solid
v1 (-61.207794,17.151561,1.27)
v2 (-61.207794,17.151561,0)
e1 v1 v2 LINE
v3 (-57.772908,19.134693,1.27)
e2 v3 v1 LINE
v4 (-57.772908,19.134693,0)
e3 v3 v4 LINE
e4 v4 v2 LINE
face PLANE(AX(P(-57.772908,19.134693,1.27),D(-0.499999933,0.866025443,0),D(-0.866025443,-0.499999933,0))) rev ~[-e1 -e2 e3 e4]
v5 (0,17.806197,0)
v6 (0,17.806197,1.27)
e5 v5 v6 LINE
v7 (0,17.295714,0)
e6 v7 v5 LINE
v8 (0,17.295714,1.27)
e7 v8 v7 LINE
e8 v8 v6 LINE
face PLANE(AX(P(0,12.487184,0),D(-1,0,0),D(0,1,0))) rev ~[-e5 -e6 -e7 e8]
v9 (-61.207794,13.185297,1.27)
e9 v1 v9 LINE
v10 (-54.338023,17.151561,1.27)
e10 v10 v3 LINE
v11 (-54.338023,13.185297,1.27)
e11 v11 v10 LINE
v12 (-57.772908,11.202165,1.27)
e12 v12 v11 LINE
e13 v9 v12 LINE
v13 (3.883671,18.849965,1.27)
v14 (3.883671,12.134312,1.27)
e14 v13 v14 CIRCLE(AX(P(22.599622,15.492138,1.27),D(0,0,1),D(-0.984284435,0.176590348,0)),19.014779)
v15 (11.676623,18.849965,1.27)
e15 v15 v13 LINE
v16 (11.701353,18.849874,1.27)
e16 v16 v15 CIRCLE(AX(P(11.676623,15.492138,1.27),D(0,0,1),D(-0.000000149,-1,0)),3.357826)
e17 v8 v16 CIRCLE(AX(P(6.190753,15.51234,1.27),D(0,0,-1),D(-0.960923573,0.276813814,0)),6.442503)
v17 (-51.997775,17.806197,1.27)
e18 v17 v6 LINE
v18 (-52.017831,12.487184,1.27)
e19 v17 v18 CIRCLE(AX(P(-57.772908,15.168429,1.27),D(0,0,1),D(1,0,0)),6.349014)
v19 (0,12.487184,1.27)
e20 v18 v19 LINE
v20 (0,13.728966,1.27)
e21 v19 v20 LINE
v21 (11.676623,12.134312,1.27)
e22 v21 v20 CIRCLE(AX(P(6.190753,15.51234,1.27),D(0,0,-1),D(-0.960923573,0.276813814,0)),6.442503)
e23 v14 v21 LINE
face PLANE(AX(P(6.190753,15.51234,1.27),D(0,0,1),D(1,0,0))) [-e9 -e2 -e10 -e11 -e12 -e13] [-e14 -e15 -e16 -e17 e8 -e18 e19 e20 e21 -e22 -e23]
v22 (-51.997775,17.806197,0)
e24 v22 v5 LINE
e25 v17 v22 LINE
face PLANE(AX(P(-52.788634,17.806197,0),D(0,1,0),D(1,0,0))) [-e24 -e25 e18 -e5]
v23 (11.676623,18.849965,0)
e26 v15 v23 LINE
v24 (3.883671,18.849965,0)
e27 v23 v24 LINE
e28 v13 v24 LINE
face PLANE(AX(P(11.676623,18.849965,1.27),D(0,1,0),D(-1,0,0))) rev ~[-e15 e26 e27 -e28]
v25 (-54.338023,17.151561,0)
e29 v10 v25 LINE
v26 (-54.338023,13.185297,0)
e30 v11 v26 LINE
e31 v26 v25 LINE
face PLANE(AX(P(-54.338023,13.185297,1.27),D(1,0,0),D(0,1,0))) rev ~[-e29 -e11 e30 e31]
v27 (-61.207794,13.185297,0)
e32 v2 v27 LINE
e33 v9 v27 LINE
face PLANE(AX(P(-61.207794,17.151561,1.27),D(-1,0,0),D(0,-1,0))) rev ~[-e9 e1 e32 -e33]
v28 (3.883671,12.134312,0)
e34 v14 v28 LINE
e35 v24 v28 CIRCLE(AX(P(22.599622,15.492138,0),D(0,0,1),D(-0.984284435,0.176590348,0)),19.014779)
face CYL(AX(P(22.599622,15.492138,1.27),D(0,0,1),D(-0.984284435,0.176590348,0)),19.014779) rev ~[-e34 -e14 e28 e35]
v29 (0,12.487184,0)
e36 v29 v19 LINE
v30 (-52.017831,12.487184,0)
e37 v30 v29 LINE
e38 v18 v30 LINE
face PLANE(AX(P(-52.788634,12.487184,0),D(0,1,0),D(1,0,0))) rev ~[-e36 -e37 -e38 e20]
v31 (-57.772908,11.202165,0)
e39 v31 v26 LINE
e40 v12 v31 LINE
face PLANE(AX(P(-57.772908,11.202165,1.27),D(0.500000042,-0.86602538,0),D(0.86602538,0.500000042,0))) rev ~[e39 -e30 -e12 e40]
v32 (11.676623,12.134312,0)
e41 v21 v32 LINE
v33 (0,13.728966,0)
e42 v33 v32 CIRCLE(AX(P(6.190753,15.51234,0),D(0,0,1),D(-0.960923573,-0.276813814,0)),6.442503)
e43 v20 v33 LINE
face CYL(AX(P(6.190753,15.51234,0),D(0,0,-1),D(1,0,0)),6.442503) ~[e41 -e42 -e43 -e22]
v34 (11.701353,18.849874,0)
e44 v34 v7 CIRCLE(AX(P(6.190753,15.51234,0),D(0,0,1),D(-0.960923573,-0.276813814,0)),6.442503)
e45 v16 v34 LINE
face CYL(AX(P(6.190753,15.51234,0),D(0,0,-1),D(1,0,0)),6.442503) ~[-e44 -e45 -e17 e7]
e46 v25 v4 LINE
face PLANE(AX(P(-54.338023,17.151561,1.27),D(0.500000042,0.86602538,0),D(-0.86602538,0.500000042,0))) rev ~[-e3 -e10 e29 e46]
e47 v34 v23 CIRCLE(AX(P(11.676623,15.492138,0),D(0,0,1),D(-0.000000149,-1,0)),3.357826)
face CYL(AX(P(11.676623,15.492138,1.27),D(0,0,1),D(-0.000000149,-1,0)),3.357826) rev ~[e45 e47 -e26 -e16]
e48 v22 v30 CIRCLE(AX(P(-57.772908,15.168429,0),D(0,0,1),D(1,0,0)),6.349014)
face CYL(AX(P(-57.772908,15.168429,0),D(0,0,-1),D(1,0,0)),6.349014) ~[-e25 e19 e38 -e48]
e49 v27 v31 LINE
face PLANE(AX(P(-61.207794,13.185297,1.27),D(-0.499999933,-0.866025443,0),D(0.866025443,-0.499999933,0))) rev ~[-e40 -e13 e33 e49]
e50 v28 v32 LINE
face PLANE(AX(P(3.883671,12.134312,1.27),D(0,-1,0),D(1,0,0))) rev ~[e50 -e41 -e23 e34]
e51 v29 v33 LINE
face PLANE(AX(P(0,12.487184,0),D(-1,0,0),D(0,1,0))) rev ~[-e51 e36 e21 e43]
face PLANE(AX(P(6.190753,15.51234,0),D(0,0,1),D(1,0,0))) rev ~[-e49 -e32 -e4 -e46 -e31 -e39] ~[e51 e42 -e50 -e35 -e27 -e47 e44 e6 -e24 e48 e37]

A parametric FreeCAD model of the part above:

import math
import FreeCAD as App
import Part
import Sketcher
Q = App.Units.Quantity

doc = App.newDocument("Part")
body = doc.addObject("PartDesign::Body", "Body")

sketch1 = body.newObject("Sketcher::SketchObject", "Sketch")
sketch1.AttachmentSupport = (doc.getObject("XY_Plane"), [""])
sketch1.MapMode = "FlatFace"
sketch1.addGeometry(Part.Circle(App.Vector(-57.772908, 15.168429, 0), App.Vector(0, 0, 1), 6.349014), False)
sketch1.addConstraint(Sketcher.Constraint("Diameter", 0, Q("12.698028 mm")))
sketch1.addConstraint(Sketcher.Constraint("DistanceY", -1, 1, 0, 3, Q("15.168429 mm")))
sketch1.addConstraint(Sketcher.Constraint("DistanceX", 0, 3, -1, 1, Q("57.772908 mm")))
pad1 = body.newObject("PartDesign::Pad", "Pad")
pad1.Profile = sketch1
pad1.Length = Q("0.05 in")

sketch2 = body.newObject("Sketcher::SketchObject", "Sketch001")
sketch2.AttachmentSupport = (doc.getObject("XY_Plane"), [""])
sketch2.MapMode = "FlatFace"
sketch2.addGeometry(Part.Circle(App.Vector(-57.772908, 15.168429, 0), App.Vector(0, 0, 1), 6.349014), False)
sketch2.addConstraint(Sketcher.Constraint("Diameter", 0, Q("12.698028 mm")))
sketch2.addConstraint(Sketcher.Constraint("DistanceY", -1, 1, 0, 3, Q("15.168429 mm")))
sketch2.addConstraint(Sketcher.Constraint("DistanceX", 0, 3, -1, 1, Q("57.772908 mm")))
pad2 = body.newObject("PartDesign::Pad", "Pad001")
pad2.Profile = sketch2
pad2.Length = Q("0.05 in")

sketch3 = body.newObject("Sketcher::SketchObject", "Sketch002")
sketch3.AttachmentSupport = (doc.getObject("XY_Plane"), [""])
sketch3.MapMode = "FlatFace"
sketch3.addGeometry(Part.LineSegment(App.Vector(-52.788634, 17.806197, 0), App.Vector(-52.788634, 12.487184, 0)), False)
sketch3.addGeometry(Part.LineSegment(App.Vector(-52.788634, 12.487184, 0), App.Vector(0, 12.487184, 0)), False)
sketch3.addGeometry(Part.LineSegment(App.Vector(0, 12.487184, 0), App.Vector(0, 17.806197, 0)), False)
sketch3.addGeometry(Part.LineSegment(App.Vector(0, 17.806197, 0), App.Vector(-52.788634, 17.806197, 0)), False)
sketch3.addConstraint(Sketcher.Constraint("Coincident", 0, 2, 1, 1))
sketch3.addConstraint(Sketcher.Constraint("Coincident", 1, 2, 2, 1))
sketch3.addConstraint(Sketcher.Constraint("Coincident", 2, 2, 3, 1))
sketch3.addConstraint(Sketcher.Constraint("Coincident", 3, 2, 0, 1))
sketch3.addConstraint(Sketcher.Constraint("Vertical", 0))
sketch3.addConstraint(Sketcher.Constraint("Horizontal", 1))
sketch3.addConstraint(Sketcher.Constraint("Vertical", 2))
sketch3.addConstraint(Sketcher.Constraint("Horizontal", 3))
sketch3.addConstraint(Sketcher.Constraint("PointOnObject", 1, 2, -2))
sketch3.addConstraint(Sketcher.Constraint("DistanceX", 1, 1, 1, 2, Q("52.788634 mm")))
sketch3.addConstraint(Sketcher.Constraint("DistanceY", 0, 2, 0, 1, Q("5.319013 mm")))
sketch3.addConstraint(Sketcher.Constraint("DistanceY", -1, 1, 0, 2, Q("12.487184 mm")))
pad3 = body.newObject("PartDesign::Pad", "Pad002")
pad3.Profile = sketch3
pad3.Length = Q("0.05 in")

sketch4 = body.newObject("Sketcher::SketchObject", "Sketch003")
sketch4.AttachmentSupport = (doc.getObject("XY_Plane"), [""])
sketch4.MapMode = "FlatFace"
sketch4.addGeometry(Part.Circle(App.Vector(6.190753, 15.51234, 0), App.Vector(0, 0, 1), 6.442503), False)
sketch4.addConstraint(Sketcher.Constraint("Diameter", 0, Q("12.885006 mm")))
sketch4.addConstraint(Sketcher.Constraint("DistanceY", -1, 1, 0, 3, Q("15.51234 mm")))
sketch4.addConstraint(Sketcher.Constraint("DistanceX", -1, 1, 0, 3, Q("6.190753 mm")))
pad4 = body.newObject("PartDesign::Pad", "Pad003")
pad4.Profile = sketch4
pad4.Length = Q("0.05 in")

sketch5 = body.newObject("Sketcher::SketchObject", "Sketch004")
sketch5.AttachmentSupport = (doc.getObject("XY_Plane"), [""])
sketch5.MapMode = "FlatFace"
sketch5.AttachmentOffset = App.Placement(App.Vector(0, 0, 0.05 * 25.4), App.Rotation())
sketch5.addGeometry(Part.LineSegment(App.Vector(-54.338023, 13.185297, 0), App.Vector(-54.338023, 17.151561, 0)), False)
sketch5.addGeometry(Part.LineSegment(App.Vector(-54.338023, 17.151561, 0), App.Vector(-57.772908, 19.134693, 0)), False)
sketch5.addGeometry(Part.LineSegment(App.Vector(-57.772908, 19.134693, 0), App.Vector(-61.207794, 17.151561, 0)), False)
sketch5.addGeometry(Part.LineSegment(App.Vector(-61.207794, 17.151561, 0), App.Vector(-61.207794, 13.185297, 0)), False)
sketch5.addGeometry(Part.LineSegment(App.Vector(-61.207794, 13.185297, 0), App.Vector(-57.772908, 11.202165, 0)), False)
sketch5.addGeometry(Part.LineSegment(App.Vector(-57.772908, 11.202165, 0), App.Vector(-54.338023, 13.185297, 0)), False)
sketch5.addConstraint(Sketcher.Constraint("Coincident", 0, 2, 1, 1))
sketch5.addConstraint(Sketcher.Constraint("Coincident", 1, 2, 2, 1))
sketch5.addConstraint(Sketcher.Constraint("Coincident", 2, 2, 3, 1))
sketch5.addConstraint(Sketcher.Constraint("Coincident", 3, 2, 4, 1))
sketch5.addConstraint(Sketcher.Constraint("Coincident", 4, 2, 5, 1))
sketch5.addConstraint(Sketcher.Constraint("Coincident", 5, 2, 0, 1))
sketch5.addConstraint(Sketcher.Constraint("Vertical", 0))
sketch5.addConstraint(Sketcher.Constraint("Vertical", 3))
sketch5.addConstraint(Sketcher.Constraint("Parallel", 1, 4))
sketch5.addConstraint(Sketcher.Constraint("Parallel", 2, 5))
sketch5.addConstraint(Sketcher.Constraint("Horizontal", 0, 2, 2, 2))
sketch5.addConstraint(Sketcher.Constraint("Horizontal", 3, 2, 5, 2))
sketch5.addConstraint(Sketcher.Constraint("Vertical", 1, 2, 4, 2))
sketch5.addConstraint(Sketcher.Constraint("Angle", 1, Q("149.999997 deg")))
sketch5.addConstraint(Sketcher.Constraint("DistanceY", 0, 1, 0, 2, Q("3.966264 mm")))
sketch5.addConstraint(Sketcher.Constraint("DistanceY", -1, 1, 0, 2, Q("17.151561 mm")))
sketch5.addConstraint(Sketcher.Constraint("DistanceY", 0, 2, 1, 2, Q("1.983132 mm")))
sketch5.addConstraint(Sketcher.Constraint("DistanceX", 0, 2, -1, 1, Q("54.338023 mm")))
pocket1 = body.newObject("PartDesign::Pocket", "Pocket")
pocket1.Profile = sketch5
pocket1.Length = Q("0.5 in")
pocket2 = body.newObject("PartDesign::Pocket", "Pocket001")
pocket2.Profile = sketch5
pocket2.Length = Q("1 in")

sketch6 = body.newObject("Sketcher::SketchObject", "Sketch005")
sketch6.AttachmentSupport = (doc.getObject("XY_Plane"), [""])
sketch6.MapMode = "FlatFace"
sketch6.AttachmentOffset = App.Placement(App.Vector(0, 0, 0.05 * 25.4), App.Rotation())
sketch6.addGeometry(Part.LineSegment(App.Vector(3.883671, 12.134312, 0), App.Vector(11.676623, 12.134312, 0)), False)
sketch6.addGeometry(Part.ArcOfCircle(Part.Circle(App.Vector(11.676623, 15.492138, 0), App.Vector(0, 0, 1), 3.357826), math.radians(-90.000009), math.radians(90.000009)), False)
sketch6.addGeometry(Part.LineSegment(App.Vector(11.676623, 18.849965, 0), App.Vector(3.883671, 18.849965, 0)), False)
sketch6.addGeometry(Part.ArcOfCircle(Part.Circle(App.Vector(22.599622, 15.492138, 0), App.Vector(0, 0, 1), 19.014779), math.radians(169.82878), math.radians(190.17122)), False)
sketch6.addConstraint(Sketcher.Constraint("Tangent", 0, 2, 1, 1))
sketch6.addConstraint(Sketcher.Constraint("Tangent", 1, 2, 2, 1))
sketch6.addConstraint(Sketcher.Constraint("Coincident", 2, 2, 3, 1))
sketch6.addConstraint(Sketcher.Constraint("Coincident", 3, 2, 0, 1))
sketch6.addConstraint(Sketcher.Constraint("Horizontal", 0))
sketch6.addConstraint(Sketcher.Constraint("Horizontal", 2))
sketch6.addConstraint(Sketcher.Constraint("Horizontal", 1, 3, 3, 3))
sketch6.addConstraint(Sketcher.Constraint("Radius", 3, Q("19.014779 mm")))
sketch6.addConstraint(Sketcher.Constraint("Radius", 1, Q("3.357826 mm")))
sketch6.addConstraint(Sketcher.Constraint("DistanceX", 0, 1, 0, 2, Q("7.792952 mm")))
sketch6.addConstraint(Sketcher.Constraint("DistanceY", -1, 1, 1, 3, Q("15.492138 mm")))
sketch6.addConstraint(Sketcher.Constraint("DistanceX", -1, 1, 2, 2, Q("3.883671 mm")))
pocket3 = body.newObject("PartDesign::Pocket", "Pocket002")
pocket3.Profile = sketch6
pocket3.Length = Q("0.5 in")

doc.recompute()
